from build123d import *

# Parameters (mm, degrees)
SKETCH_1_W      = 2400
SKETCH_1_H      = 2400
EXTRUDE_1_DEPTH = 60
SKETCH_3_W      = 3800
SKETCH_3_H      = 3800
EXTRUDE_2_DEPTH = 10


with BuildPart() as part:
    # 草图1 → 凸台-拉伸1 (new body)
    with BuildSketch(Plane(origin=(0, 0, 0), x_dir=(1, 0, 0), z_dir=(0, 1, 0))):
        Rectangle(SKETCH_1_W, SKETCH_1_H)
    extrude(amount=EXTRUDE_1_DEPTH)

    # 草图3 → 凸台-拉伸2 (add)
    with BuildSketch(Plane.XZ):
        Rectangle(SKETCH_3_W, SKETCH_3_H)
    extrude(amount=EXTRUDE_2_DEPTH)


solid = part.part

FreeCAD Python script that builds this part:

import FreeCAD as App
import Part
import Sketcher
from FreeCAD import Vector
Q = App.Units.Quantity

doc = App.newDocument("Part")
body = doc.addObject("PartDesign::Body", "Body")

sketch1 = body.newObject("Sketcher::SketchObject", "Sketch")
sketch1.AttachmentSupport = (doc.getObject("XZ_Plane"), [""])
sketch1.MapMode = "FlatFace"
sketch1.addGeometry([
    Part.LineSegment(Vector(-1200, -1200, 0), Vector(-1200, 1200, 0)),
    Part.LineSegment(Vector(-1200, 1200, 0), Vector(1200, 1200, 0)),
    Part.LineSegment(Vector(1200, 1200, 0), Vector(1200, -1200, 0)),
    Part.LineSegment(Vector(1200, -1200, 0), Vector(-1200, -1200, 0)),
], False)
sketch1.addConstraint([
    Sketcher.Constraint("Coincident", 0, 2, 1, 1),
    Sketcher.Constraint("Coincident", 1, 2, 2, 1),
    Sketcher.Constraint("Coincident", 2, 2, 3, 1),
    Sketcher.Constraint("Coincident", 3, 2, 0, 1),
    Sketcher.Constraint("Vertical", 0),
    Sketcher.Constraint("Horizontal", 1),
    Sketcher.Constraint("Vertical", 2),
    Sketcher.Constraint("Horizontal", 3),
    Sketcher.Constraint("Symmetric", 0, 2, 2, 2, -1, 1),
    Sketcher.Constraint("Equal", 3, 0),
    Sketcher.Constraint("DistanceX", 1, 1, 1, 2, Q("2400 mm")),
])
pad1 = body.newObject("PartDesign::Pad", "Pad")
pad1.Profile = sketch1
pad1.Length = 60
pad1.Reversed = True

sketch2 = body.newObject("Sketcher::SketchObject", "Sketch001")
sketch2.AttachmentSupport = (doc.getObject("XZ_Plane"), [""])
sketch2.MapMode = "FlatFace"
sketch2.addGeometry([
    Part.LineSegment(Vector(-1900, 1900, 0), Vector(-1900, -1900, 0)),
    Part.LineSegment(Vector(-1900, -1900, 0), Vector(1900, -1900, 0)),
    Part.LineSegment(Vector(1900, -1900, 0), Vector(1900, 1900, 0)),
    Part.LineSegment(Vector(1900, 1900, 0), Vector(-1900, 1900, 0)),
], False)
sketch2.addConstraint([
    Sketcher.Constraint("Coincident", 0, 2, 1, 1),
    Sketcher.Constraint("Coincident", 1, 2, 2, 1),
    Sketcher.Constraint("Coincident", 2, 2, 3, 1),
    Sketcher.Constraint("Coincident", 3, 2, 0, 1),
    Sketcher.Constraint("Vertical", 0),
    Sketcher.Constraint("Horizontal", 1),
    Sketcher.Constraint("Vertical", 2),
    Sketcher.Constraint("Horizontal", 3),
    Sketcher.Constraint("Symmetric", 0, 2, 2, 2, -1, 1),
    Sketcher.Constraint("Equal", 3, 0),
    Sketcher.Constraint("DistanceX", 1, 1, 1, 2, Q("3800 mm")),
])
pad2 = body.newObject("PartDesign::Pad", "Pad001")
pad2.Profile = sketch2
pad2.Length = 10

doc.recompute()
